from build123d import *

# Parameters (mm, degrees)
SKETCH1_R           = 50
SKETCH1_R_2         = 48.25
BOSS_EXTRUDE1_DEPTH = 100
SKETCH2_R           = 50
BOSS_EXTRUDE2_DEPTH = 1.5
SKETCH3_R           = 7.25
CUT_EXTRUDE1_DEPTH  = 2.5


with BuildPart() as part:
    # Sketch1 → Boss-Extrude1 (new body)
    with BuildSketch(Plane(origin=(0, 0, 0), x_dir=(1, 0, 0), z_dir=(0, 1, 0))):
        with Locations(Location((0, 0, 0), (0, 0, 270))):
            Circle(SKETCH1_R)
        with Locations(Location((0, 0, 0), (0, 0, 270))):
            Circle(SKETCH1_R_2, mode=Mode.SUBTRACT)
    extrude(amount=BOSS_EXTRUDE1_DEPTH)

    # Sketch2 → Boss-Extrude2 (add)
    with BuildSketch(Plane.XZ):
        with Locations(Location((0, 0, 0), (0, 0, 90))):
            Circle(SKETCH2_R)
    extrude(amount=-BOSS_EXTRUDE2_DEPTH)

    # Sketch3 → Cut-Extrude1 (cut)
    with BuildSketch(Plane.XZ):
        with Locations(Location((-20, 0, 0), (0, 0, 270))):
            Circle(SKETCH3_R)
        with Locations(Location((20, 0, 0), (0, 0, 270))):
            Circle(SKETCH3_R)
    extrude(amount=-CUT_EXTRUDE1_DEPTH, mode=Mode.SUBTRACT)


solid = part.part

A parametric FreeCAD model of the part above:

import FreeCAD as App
import Part
import Sketcher

V = App.Vector
Q = App.Units.Quantity

doc = App.newDocument("Part")
params = doc.addObject("Spreadsheet::Sheet", "Params")
for row, (alias, value) in enumerate([
    ("sketch1_diameter", "100 mm"),
    ("sketch1_diameter2", "96.5 mm"),
    ("pad1_length", "100 mm"),
    ("sketch2_diameter", "100 mm"),
    ("pad2_length", "1.5 mm"),
    ("sketch3_diameter", "14.5 mm"),
    ("pocket1_length", "2.5 mm"),
], start=1):
    params.set(f"A{row}", alias)
    params.set(f"B{row}", "=" + value)
    params.setAlias(f"B{row}", alias)

body = doc.addObject("PartDesign::Body", "Body")

sketch1 = doc.addObject("Sketcher::SketchObject", "Sketch")
body.addObject(sketch1)
sketch1.AttachmentSupport = (doc.XZ_Plane, [""])
sketch1.MapMode = "FlatFace"
sketch1.addGeometry(Part.Circle(V(0, 0, 0), V(0, 0, 1), 50), False)
sketch1.addGeometry(Part.Circle(V(0, 0, 0), V(0, 0, 1), 48), False)
sketch1.addConstraint(Sketcher.Constraint("Coincident", 0, 3, -1, 1))
sketch1.addConstraint(Sketcher.Constraint("Coincident", 1, 3, -1, 1))
sketch1.addConstraint(Sketcher.Constraint("Diameter", 0, Q("100 mm")))
sketch1.addConstraint(Sketcher.Constraint("Diameter", 1, Q("96.5 mm")))
sketch1.setExpression("Constraints[2]", "Params.sketch1_diameter")
sketch1.setExpression("Constraints[3]", "Params.sketch1_diameter2")
pad1 = doc.addObject("PartDesign::Pad", "Pad")
body.addObject(pad1)
pad1.Profile = sketch1
pad1.setExpression("Length", "Params.pad1_length")
pad1.Reversed = True

sketch2 = doc.addObject("Sketcher::SketchObject", "Sketch001")
body.addObject(sketch2)
sketch2.AttachmentSupport = (doc.XZ_Plane, [""])
sketch2.MapMode = "FlatFace"
sketch2.addGeometry(Part.Circle(V(0, 0, 0), V(0, 0, 1), 50), False)
sketch2.addConstraint(Sketcher.Constraint("Coincident", 0, 3, -1, 1))
sketch2.addConstraint(Sketcher.Constraint("Diameter", 0, Q("100 mm")))
sketch2.setExpression("Constraints[1]", "Params.sketch2_diameter")
pad2 = doc.addObject("PartDesign::Pad", "Pad001")
body.addObject(pad2)
pad2.Profile = sketch2
pad2.setExpression("Length", "Params.pad2_length")
pad2.Reversed = True

sketch3 = doc.addObject("Sketcher::SketchObject", "Sketch002")
body.addObject(sketch3)
sketch3.AttachmentSupport = (doc.XZ_Plane, [""])
sketch3.MapMode = "FlatFace"
sketch3.addGeometry(Part.Circle(V(-20, 0, 0), V(0, 0, 1), 7), False)
sketch3.addGeometry(Part.Circle(V(20, 0, 0), V(0, 0, 1), 7), False)
sketch3.addConstraint(Sketcher.Constraint("Equal", 0, 1))
sketch3.addConstraint(Sketcher.Constraint("Symmetric", 0, 3, 1, 3, -1, 1))
sketch3.addConstraint(Sketcher.Constraint("PointOnObject", 0, 3, -1))
sketch3.addConstraint(Sketcher.Constraint("Diameter", 0, Q("14.5 mm")))
sketch3.addConstraint(Sketcher.Constraint("DistanceX", 0, 3, -1, 1, Q("20 mm")))
sketch3.setExpression("Constraints[3]", "Params.sketch3_diameter")
pocket1 = doc.addObject("PartDesign::Pocket", "Pocket")
body.addObject(pocket1)
pocket1.Profile = sketch3
pocket1.setExpression("Length", "Params.pocket1_length")

doc.recompute()
